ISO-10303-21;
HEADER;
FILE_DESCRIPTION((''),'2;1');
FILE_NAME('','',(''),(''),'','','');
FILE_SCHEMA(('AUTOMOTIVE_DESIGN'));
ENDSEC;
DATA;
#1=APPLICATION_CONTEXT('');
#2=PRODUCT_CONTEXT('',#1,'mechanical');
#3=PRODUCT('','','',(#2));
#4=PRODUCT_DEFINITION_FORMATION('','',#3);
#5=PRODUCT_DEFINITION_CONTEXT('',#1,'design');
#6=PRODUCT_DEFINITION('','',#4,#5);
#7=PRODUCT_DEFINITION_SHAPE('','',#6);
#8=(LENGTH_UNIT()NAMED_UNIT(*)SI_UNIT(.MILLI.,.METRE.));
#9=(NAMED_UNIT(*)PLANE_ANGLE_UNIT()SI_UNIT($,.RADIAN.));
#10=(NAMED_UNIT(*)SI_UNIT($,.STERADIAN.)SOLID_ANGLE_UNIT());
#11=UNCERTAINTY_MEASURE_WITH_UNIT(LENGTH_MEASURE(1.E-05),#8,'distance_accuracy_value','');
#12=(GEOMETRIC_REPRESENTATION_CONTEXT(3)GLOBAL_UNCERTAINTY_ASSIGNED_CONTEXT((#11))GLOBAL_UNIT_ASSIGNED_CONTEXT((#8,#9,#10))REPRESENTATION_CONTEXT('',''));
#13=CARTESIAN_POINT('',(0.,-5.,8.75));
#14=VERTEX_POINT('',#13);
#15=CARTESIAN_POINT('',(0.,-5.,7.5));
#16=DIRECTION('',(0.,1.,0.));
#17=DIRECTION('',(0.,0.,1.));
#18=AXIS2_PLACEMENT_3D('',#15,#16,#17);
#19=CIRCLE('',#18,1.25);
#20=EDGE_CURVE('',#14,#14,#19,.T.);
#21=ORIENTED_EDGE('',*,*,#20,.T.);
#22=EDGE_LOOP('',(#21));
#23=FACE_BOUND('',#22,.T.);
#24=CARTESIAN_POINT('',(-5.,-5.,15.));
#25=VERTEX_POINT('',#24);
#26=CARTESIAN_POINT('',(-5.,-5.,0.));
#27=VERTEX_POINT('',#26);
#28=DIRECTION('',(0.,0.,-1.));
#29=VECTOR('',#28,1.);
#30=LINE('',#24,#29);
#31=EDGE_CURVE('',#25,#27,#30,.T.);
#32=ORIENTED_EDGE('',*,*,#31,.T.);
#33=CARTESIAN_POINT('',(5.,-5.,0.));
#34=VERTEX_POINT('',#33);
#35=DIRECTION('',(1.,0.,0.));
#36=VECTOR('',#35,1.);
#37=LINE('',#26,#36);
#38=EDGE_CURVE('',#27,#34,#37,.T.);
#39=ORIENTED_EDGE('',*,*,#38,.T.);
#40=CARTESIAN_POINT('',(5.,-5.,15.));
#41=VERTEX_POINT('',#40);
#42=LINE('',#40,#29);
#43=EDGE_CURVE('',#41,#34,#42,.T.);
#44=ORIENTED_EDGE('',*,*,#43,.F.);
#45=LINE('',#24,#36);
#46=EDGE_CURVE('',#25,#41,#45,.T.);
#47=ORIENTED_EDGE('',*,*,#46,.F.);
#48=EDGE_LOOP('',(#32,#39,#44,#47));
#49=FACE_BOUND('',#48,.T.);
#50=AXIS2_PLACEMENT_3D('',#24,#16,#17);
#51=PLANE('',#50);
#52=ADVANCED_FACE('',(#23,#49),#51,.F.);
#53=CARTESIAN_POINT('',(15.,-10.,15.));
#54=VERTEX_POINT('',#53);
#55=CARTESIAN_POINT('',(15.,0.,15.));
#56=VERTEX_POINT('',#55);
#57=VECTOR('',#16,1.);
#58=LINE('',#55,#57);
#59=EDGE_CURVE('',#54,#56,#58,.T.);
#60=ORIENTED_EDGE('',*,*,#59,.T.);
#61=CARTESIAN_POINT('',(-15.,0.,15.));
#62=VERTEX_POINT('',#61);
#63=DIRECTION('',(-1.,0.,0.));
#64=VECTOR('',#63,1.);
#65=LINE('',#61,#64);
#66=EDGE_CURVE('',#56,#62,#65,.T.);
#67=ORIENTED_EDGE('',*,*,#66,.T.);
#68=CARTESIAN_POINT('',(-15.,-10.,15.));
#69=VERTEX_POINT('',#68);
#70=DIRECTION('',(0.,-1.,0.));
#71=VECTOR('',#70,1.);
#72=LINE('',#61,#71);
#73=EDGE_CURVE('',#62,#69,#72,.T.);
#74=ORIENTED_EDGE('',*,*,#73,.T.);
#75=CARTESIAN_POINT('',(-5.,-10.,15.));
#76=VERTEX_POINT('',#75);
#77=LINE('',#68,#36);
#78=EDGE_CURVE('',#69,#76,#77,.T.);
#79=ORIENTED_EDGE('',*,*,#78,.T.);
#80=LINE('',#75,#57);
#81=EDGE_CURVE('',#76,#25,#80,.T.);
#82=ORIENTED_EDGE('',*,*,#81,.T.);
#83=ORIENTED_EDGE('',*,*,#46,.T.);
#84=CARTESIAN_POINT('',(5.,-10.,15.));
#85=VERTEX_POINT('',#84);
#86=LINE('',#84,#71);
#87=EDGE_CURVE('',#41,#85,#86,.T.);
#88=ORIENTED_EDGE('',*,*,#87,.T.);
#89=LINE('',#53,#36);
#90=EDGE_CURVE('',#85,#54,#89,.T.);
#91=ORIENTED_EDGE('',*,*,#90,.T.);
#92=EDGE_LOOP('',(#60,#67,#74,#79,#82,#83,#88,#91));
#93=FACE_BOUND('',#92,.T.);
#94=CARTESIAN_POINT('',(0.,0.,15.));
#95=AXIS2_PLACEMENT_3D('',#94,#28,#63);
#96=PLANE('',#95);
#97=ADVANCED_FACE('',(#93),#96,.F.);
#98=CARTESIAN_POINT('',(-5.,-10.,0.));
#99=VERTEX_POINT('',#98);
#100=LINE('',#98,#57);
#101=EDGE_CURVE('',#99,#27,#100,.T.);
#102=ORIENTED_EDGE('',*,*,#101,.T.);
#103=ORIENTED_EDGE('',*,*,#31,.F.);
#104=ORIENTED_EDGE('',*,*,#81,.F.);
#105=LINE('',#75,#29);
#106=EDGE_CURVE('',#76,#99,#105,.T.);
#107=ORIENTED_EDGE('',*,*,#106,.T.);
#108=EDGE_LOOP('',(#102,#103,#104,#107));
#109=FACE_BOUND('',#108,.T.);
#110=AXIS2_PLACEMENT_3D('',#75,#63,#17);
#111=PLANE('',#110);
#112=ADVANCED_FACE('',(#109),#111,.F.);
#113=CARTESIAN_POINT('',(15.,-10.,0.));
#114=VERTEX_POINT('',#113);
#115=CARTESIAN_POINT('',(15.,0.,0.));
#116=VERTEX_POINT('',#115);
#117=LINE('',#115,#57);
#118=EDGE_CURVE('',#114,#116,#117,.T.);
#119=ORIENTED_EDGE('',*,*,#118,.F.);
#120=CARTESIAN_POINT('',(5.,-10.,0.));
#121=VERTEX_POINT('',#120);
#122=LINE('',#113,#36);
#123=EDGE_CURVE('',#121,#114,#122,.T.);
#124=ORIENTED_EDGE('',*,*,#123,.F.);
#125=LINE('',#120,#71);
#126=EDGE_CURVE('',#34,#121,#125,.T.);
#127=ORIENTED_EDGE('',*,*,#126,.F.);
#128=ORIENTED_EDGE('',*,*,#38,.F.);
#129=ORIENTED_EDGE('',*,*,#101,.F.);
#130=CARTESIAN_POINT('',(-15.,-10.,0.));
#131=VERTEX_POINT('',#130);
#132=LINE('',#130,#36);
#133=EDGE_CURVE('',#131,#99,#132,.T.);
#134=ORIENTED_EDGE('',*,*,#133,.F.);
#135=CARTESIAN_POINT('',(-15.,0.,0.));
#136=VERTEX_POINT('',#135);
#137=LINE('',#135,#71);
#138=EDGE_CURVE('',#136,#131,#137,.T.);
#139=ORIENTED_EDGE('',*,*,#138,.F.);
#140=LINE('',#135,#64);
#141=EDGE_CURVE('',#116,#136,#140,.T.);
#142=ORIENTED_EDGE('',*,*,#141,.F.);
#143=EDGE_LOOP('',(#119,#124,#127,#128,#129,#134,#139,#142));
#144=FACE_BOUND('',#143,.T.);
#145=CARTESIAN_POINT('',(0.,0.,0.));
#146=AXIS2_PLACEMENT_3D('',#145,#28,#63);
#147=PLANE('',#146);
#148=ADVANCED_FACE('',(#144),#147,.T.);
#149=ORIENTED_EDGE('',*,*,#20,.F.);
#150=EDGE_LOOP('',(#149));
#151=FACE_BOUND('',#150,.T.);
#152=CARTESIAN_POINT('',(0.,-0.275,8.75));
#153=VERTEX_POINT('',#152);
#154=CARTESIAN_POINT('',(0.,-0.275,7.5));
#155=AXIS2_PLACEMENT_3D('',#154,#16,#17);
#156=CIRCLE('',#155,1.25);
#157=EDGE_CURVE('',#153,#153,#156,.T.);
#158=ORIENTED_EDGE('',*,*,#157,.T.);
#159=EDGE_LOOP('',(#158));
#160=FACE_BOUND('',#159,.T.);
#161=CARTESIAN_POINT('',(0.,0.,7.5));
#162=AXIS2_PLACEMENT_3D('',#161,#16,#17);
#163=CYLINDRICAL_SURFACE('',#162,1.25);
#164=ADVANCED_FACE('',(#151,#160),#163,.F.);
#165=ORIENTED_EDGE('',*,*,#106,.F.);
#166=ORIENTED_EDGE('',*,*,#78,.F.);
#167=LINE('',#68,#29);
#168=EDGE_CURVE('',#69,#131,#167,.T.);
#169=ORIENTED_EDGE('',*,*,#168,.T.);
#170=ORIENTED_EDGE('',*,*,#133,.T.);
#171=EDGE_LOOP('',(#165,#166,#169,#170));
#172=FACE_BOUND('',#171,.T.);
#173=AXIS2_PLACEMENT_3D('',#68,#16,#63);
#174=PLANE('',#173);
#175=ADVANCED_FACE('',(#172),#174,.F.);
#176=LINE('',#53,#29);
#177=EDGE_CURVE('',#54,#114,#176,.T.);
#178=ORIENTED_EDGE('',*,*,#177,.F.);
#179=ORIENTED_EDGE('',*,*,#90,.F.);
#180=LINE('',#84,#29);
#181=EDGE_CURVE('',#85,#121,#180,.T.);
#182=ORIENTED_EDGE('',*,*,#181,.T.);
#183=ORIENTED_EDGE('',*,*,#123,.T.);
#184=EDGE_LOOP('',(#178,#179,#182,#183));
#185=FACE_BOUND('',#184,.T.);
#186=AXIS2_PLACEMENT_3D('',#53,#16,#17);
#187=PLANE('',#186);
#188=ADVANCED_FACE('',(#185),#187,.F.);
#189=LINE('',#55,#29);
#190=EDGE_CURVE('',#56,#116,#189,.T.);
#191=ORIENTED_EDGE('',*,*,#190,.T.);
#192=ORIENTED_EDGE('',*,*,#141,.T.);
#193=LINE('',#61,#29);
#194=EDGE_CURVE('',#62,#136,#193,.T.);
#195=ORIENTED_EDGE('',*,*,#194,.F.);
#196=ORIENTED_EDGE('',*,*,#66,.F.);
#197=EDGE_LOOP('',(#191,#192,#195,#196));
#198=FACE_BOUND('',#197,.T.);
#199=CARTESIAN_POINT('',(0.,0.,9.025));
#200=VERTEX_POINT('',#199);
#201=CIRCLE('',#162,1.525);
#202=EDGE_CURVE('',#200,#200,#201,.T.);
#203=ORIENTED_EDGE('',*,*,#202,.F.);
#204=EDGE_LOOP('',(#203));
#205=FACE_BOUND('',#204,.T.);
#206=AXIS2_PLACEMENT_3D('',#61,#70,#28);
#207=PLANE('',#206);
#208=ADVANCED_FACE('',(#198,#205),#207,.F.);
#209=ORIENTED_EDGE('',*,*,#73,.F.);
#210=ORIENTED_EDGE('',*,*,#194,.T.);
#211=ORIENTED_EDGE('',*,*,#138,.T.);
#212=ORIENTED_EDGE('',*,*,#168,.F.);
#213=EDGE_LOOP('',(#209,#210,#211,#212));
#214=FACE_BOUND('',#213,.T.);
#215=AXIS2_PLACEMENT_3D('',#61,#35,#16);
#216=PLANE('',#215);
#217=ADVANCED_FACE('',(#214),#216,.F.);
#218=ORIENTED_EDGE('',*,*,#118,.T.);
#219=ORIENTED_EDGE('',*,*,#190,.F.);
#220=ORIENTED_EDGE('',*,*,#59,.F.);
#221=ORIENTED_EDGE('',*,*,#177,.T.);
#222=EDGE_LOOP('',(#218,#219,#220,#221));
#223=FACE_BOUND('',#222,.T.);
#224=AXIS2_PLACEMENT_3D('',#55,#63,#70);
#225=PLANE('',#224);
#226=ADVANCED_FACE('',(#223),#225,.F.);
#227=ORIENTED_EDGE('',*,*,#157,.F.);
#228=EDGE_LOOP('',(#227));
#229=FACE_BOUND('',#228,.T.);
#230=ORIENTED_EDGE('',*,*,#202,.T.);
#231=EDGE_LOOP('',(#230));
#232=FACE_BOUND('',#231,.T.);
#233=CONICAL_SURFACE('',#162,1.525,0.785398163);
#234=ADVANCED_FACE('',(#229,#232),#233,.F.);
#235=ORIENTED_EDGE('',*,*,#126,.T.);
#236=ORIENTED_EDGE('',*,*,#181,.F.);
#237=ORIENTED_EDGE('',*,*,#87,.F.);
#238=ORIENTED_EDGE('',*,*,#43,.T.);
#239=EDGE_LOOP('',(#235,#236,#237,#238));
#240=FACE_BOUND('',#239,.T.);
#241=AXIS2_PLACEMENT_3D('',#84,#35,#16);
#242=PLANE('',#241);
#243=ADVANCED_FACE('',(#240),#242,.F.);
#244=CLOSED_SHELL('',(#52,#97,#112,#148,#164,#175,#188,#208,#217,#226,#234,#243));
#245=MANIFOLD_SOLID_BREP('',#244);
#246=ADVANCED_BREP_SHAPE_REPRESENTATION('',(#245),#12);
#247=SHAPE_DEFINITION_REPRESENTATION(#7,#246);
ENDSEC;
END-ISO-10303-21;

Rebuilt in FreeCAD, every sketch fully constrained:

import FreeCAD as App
import Part
import Sketcher
Q = App.Units.Quantity


def add_polygon(sketch, points):
    """Adds a closed chain of lines whose ends are joined by coincident constraints."""
    first, n = sketch.GeometryCount, len(points)
    for a, b in zip(points, points[1:] + points[:1]):
        sketch.addGeometry(Part.LineSegment(App.Vector(*a, 0), App.Vector(*b, 0)), False)
    for i in range(n):
        sketch.addConstraint(Sketcher.Constraint("Coincident", first + i, 2, first + (i + 1) % n, 1))

doc = App.newDocument("Part")
body = doc.addObject("PartDesign::Body", "Body")

sketch1 = body.newObject("Sketcher::SketchObject", "Sketch")
sketch1.AttachmentSupport = (doc.getObject("XY_Plane"), [""])
sketch1.MapMode = "FlatFace"
add_polygon(sketch1, [(15, 0), (-15, 0), (-15, -10), (-5, -10), (-5, -5), (5, -5), (5, -10), (15, -10)])
sketch1.addConstraint([
    Sketcher.Constraint("Horizontal", 0),
    Sketcher.Constraint("Vertical", 1),
    Sketcher.Constraint("Horizontal", 2),
    Sketcher.Constraint("Vertical", 3),
    Sketcher.Constraint("Horizontal", 4),
    Sketcher.Constraint("Vertical", 5),
    Sketcher.Constraint("Horizontal", 6),
    Sketcher.Constraint("Vertical", 7),
    Sketcher.Constraint("Symmetric", 0, 2, 7, 2, -1, 1),
    Sketcher.Constraint("Symmetric", 2, 2, 5, 2, -2),
    Sketcher.Constraint("Equal", 2, 4),
    Sketcher.Constraint("Equal", 6, 1),
    Sketcher.Constraint("DistanceX", 0, 2, 0, 1, Q("30 mm")),
    Sketcher.Constraint("DistanceY", 3, 1, 3, 2, Q("5 mm")),
])
pad1 = body.newObject("PartDesign::Pad", "Pad")
pad1.Profile = sketch1
pad1.Length = 15

sketch2 = body.newObject("Sketcher::SketchObject", "Sketch001")
sketch2.AttachmentSupport = (doc.getObject("XZ_Plane"), [""])
sketch2.MapMode = "FlatFace"
sketch2.addGeometry(Part.Circle(App.Vector(0, 7.5, 0), App.Vector(0, 0, 1), 1.2), False)
sketch2.addConstraint([
    Sketcher.Constraint("PointOnObject", 0, 3, -2),
    Sketcher.Constraint("Diameter", 0, Q("2.5 mm")),
    Sketcher.Constraint("DistanceY", -1, 1, 0, 3, Q("7.5 mm")),
])
doc.recompute()
hole = body.newObject("PartDesign::Hole", "Hole")
hole.Profile = sketch2
hole.ThreadType = "None"
hole.Diameter = 2.5
hole.DepthType = "ThroughAll"
hole.HoleCutType = "Countersink"
hole.HoleCutDiameter = 3.05
hole.HoleCutCountersinkAngle = 90
hole.Reversed = True

doc.recompute()
